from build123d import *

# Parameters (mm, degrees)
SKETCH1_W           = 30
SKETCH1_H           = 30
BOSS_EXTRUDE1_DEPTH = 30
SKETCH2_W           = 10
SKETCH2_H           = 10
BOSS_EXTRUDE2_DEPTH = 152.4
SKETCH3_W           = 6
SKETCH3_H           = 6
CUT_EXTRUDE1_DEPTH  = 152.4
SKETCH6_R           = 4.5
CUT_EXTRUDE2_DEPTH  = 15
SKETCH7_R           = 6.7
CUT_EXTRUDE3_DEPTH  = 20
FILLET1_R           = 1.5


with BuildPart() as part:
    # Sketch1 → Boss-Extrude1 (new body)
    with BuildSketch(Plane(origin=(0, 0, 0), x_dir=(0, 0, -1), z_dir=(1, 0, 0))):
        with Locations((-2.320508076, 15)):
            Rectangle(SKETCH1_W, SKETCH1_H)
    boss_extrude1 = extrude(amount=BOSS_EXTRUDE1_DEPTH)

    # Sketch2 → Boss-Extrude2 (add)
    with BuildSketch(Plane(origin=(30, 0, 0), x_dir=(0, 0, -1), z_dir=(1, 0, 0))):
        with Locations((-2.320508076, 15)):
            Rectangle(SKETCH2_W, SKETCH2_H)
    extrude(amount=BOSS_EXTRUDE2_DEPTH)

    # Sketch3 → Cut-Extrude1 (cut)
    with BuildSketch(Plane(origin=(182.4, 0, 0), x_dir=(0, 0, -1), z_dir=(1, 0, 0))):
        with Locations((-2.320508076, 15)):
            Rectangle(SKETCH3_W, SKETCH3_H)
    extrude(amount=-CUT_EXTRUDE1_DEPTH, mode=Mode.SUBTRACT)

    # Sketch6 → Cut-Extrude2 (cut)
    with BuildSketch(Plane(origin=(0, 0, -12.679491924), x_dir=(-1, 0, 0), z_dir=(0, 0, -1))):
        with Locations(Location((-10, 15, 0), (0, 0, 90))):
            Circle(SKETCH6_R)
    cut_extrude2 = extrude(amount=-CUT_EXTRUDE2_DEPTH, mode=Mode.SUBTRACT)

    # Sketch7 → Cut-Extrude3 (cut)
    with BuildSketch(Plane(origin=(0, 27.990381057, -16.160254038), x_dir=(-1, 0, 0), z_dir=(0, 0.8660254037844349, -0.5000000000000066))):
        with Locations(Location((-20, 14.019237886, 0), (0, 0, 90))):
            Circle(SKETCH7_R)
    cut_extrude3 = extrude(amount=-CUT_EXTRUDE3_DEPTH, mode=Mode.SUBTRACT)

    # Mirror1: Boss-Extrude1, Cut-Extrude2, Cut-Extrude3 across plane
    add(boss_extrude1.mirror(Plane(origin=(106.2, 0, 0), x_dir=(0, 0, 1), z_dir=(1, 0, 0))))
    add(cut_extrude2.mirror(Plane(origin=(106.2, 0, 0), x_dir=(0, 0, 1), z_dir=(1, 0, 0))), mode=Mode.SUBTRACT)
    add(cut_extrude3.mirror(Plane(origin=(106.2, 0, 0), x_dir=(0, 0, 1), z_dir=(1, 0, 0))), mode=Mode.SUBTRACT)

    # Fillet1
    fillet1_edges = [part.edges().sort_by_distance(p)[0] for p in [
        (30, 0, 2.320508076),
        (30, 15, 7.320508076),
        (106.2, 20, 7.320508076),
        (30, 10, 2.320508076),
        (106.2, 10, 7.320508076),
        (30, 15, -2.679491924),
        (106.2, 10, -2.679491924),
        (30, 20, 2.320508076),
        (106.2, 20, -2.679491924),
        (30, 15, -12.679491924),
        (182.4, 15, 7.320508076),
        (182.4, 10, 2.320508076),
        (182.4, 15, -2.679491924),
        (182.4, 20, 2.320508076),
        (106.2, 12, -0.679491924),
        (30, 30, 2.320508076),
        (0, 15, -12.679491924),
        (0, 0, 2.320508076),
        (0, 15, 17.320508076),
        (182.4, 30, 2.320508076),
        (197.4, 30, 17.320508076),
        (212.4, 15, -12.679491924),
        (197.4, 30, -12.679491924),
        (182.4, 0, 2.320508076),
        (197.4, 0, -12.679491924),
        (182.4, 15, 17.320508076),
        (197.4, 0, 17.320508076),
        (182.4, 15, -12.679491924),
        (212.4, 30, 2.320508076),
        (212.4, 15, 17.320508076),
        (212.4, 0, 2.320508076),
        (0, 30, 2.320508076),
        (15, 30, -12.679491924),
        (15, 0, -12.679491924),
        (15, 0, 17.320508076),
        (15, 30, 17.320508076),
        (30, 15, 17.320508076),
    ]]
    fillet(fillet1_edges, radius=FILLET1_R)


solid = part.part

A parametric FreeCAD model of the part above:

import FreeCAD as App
import Part
import Sketcher
Q = App.Units.Quantity


def edges_at(feature, points):
    """Names of the edges that pass closest to the given points."""
    edges = feature.Shape.Edges
    near = lambda p: min(range(len(edges)), key=lambda i: edges[i].distToShape(Part.Vertex(*p))[0])
    return sorted({f"Edge{near(p) + 1}" for p in points})


def add_polygon(sketch, points):
    """Adds a closed chain of lines whose ends are joined by coincident constraints."""
    first, n = sketch.GeometryCount, len(points)
    for a, b in zip(points, points[1:] + points[:1]):
        sketch.addGeometry(Part.LineSegment(App.Vector(*a, 0), App.Vector(*b, 0)), False)
    for i in range(n):
        sketch.addConstraint(Sketcher.Constraint("Coincident", first + i, 2, first + (i + 1) % n, 1))

doc = App.newDocument("Part")
params = doc.addObject("Spreadsheet::Sheet", "Params")
for row, (alias, value) in enumerate([
    ("sketch1_width", "30 mm"),
    ("pad1_length", "30 mm"),
    ("sketch2_width", "10 mm"),
    ("pad2_length", "152.4 mm"),
    ("sketch3_width", "6 mm"),
    ("pocket1_length", "152.4 mm"),
    ("sketch4_diameter", "9 mm"),
    ("pocket2_length", "15 mm"),
    ("sketch5_diameter", "13.4 mm"),
    ("pocket3_length", "20 mm"),
    ("fillet_radius", "1.5 mm"),
], start=1):
    params.set(f"A{row}", alias)
    params.set(f"B{row}", "=" + value)
    params.setAlias(f"B{row}", alias)

body = doc.addObject("PartDesign::Body", "Body")

# Sketch on YZ plane
sketch1 = body.newObject("Sketcher::SketchObject", "Sketch")
sketch1.AttachmentSupport = (doc.getObject("YZ_Plane"), [""])
sketch1.MapMode = "FlatFace"
add_polygon(sketch1, [(30, 17.320508), (0, 17.320508), (0, -12.679492), (30, -12.679492)])  # lines 0-3
sketch1.addConstraint(Sketcher.Constraint("Horizontal", 0))
sketch1.addConstraint(Sketcher.Constraint("Vertical", 1))
sketch1.addConstraint(Sketcher.Constraint("Horizontal", 2))
sketch1.addConstraint(Sketcher.Constraint("Vertical", 3))
sketch1.addConstraint(Sketcher.Constraint("PointOnObject", 0, 2, -2))
sketch1.addConstraint(Sketcher.Constraint("Equal", 2, 1))
sketch1.addConstraint(Sketcher.Constraint("DistanceX", 0, 2, 0, 1, Q("30 mm")))
sketch1.addConstraint(Sketcher.Constraint("DistanceY", -1, 1, 0, 2, Q("17.320508 mm")))
sketch1.setExpression("Constraints[10]", "Params.sketch1_width")
pad1 = body.newObject("PartDesign::Pad", "Pad")
pad1.Profile = sketch1
pad1.setExpression("Length", "Params.pad1_length")

# Sketch on YZ plane
sketch2 = body.newObject("Sketcher::SketchObject", "Sketch001")
sketch2.AttachmentSupport = (doc.getObject("YZ_Plane"), [""])
sketch2.MapMode = "FlatFace"
sketch2.AttachmentOffset = App.Placement(App.Vector(0, 0, 30), App.Rotation())
add_polygon(sketch2, [(20, 7.320508), (10, 7.320508), (10, -2.679492), (20, -2.679492)])  # lines 0-3
sketch2.addConstraint(Sketcher.Constraint("Horizontal", 0))
sketch2.addConstraint(Sketcher.Constraint("Vertical", 1))
sketch2.addConstraint(Sketcher.Constraint("Horizontal", 2))
sketch2.addConstraint(Sketcher.Constraint("Vertical", 3))
sketch2.addConstraint(Sketcher.Constraint("Equal", 2, 1))
sketch2.addConstraint(Sketcher.Constraint("DistanceX", 0, 2, 0, 1, Q("10 mm")))
sketch2.addConstraint(Sketcher.Constraint("DistanceX", -1, 1, 0, 2, Q("10 mm")))
sketch2.addConstraint(Sketcher.Constraint("DistanceY", -1, 1, 0, 2, Q("7.320508 mm")))
sketch2.setExpression("Constraints[9]", "Params.sketch2_width")
pad2 = body.newObject("PartDesign::Pad", "Pad001")
pad2.Profile = sketch2
pad2.setExpression("Length", "Params.pad2_length")

# Sketch on YZ plane
sketch3 = body.newObject("Sketcher::SketchObject", "Sketch002")
sketch3.AttachmentSupport = (doc.getObject("YZ_Plane"), [""])
sketch3.MapMode = "FlatFace"
sketch3.AttachmentOffset = App.Placement(App.Vector(0, 0, 182.4), App.Rotation())
add_polygon(sketch3, [(18, 5.320508), (12, 5.320508), (12, -0.679492), (18, -0.679492)])  # lines 0-3
sketch3.addConstraint(Sketcher.Constraint("Horizontal", 0))
sketch3.addConstraint(Sketcher.Constraint("Vertical", 1))
sketch3.addConstraint(Sketcher.Constraint("Horizontal", 2))
sketch3.addConstraint(Sketcher.Constraint("Vertical", 3))
sketch3.addConstraint(Sketcher.Constraint("Equal", 2, 1))
sketch3.addConstraint(Sketcher.Constraint("DistanceX", 0, 2, 0, 1, Q("6 mm")))
sketch3.addConstraint(Sketcher.Constraint("DistanceX", -1, 1, 0, 2, Q("12 mm")))
sketch3.addConstraint(Sketcher.Constraint("DistanceY", -1, 1, 0, 2, Q("5.320508 mm")))
sketch3.setExpression("Constraints[9]", "Params.sketch3_width")
pocket1 = body.newObject("PartDesign::Pocket", "Pocket")
pocket1.Profile = sketch3
pocket1.setExpression("Length", "Params.pocket1_length")

# Sketch on XY plane
sketch4 = body.newObject("Sketcher::SketchObject", "Sketch003")
sketch4.AttachmentSupport = (doc.getObject("XY_Plane"), [""])
sketch4.MapMode = "FlatFace"
sketch4.AttachmentOffset = App.Placement(App.Vector(0, 0, -12.679492), App.Rotation())
sketch4.addGeometry(Part.Circle(App.Vector(10, 15, 0), App.Vector(0, 0, 1), 4.5), False)
sketch4.addConstraint(Sketcher.Constraint("Diameter", 0, Q("9 mm")))
sketch4.addConstraint(Sketcher.Constraint("DistanceX", -1, 1, 0, 3, Q("10 mm")))
sketch4.addConstraint(Sketcher.Constraint("DistanceY", -1, 1, 0, 3, Q("15 mm")))
sketch4.setExpression("Constraints[0]", "Params.sketch4_diameter")
pocket2 = body.newObject("PartDesign::Pocket", "Pocket001")
pocket2.Profile = sketch4
pocket2.setExpression("Length", "Params.pocket2_length")
pocket2.Reversed = True

# Sketch on an angled plane
sketch5 = body.newObject("Sketcher::SketchObject", "Sketch004")
sketch5.Placement = App.Placement(App.Vector(0, 27.990381, -16.160254), App.Rotation(App.Vector(-1, 0, 0), App.Vector(0, 0.5, 0.866025404), App.Vector(0, 0.866025404, -0.5), "ZXY"))
sketch5.addGeometry(Part.Circle(App.Vector(-20, 14.019238, 0), App.Vector(0, 0, 1), 6.7), False)
sketch5.addConstraint(Sketcher.Constraint("Diameter", 0, Q("13.4 mm")))
sketch5.addConstraint(Sketcher.Constraint("DistanceX", 0, 3, -1, 1, Q("20 mm")))
sketch5.addConstraint(Sketcher.Constraint("DistanceY", -1, 1, 0, 3, Q("14.019238 mm")))
sketch5.setExpression("Constraints[0]", "Params.sketch5_diameter")
pocket3 = body.newObject("PartDesign::Pocket", "Pocket002")
pocket3.Profile = sketch5
pocket3.setExpression("Length", "Params.pocket3_length")
doc.recompute()

datumplane = body.newObject("PartDesign::Plane", "DatumPlane")
datumplane.AttachmentSupport = (doc.getObject("YZ_Plane"), [""])
datumplane.MapMode = "FlatFace"
datumplane.AttachmentOffset = App.Placement(App.Vector(0, 0, 106.2), App.Rotation())
mirrored = body.newObject("PartDesign::Mirrored", "Mirrored")
mirrored.Originals = [pad1, pocket2, pocket3]
mirrored.MirrorPlane = (datumplane, [""])
body.Tip = mirrored
doc.recompute()

fillet = body.newObject("PartDesign::Fillet", "Fillet")
fillet.Base = (mirrored, edges_at(mirrored, [
    (30, 0, 2.321),
    (30, 15, 7.321),
    (106.2, 20, 7.321),
    (30, 10, 2.321),
    (106.2, 10, 7.321),
    (30, 15, -2.679),
    (106.2, 10, -2.679),
    (30, 20, 2.321),
    (106.2, 20, -2.679),
    (30, 15, -12.679),
    (182.4, 15, 7.321),
    (182.4, 10, 2.321),
    (182.4, 15, -2.679),
    (182.4, 20, 2.321),
    (106.2, 12, -0.679),
    (30, 30, 2.321),
    (0, 15, -12.679),
    (0, 0, 2.321),
    (0, 15, 17.321),
    (182.4, 30, 2.321),
    (197.4, 30, 17.321),
    (212.4, 15, -12.679),
    (197.4, 30, -12.679),
    (182.4, 0, 2.321),
    (197.4, 0, -12.679),
    (182.4, 15, 17.321),
    (197.4, 0, 17.321),
    (182.4, 15, -12.679),
    (212.4, 30, 2.321),
    (212.4, 15, 17.321),
    (212.4, 0, 2.321),
    (0, 30, 2.321),
    (15, 30, -12.679),
    (15, 0, -12.679),
    (15, 0, 17.321),
    (15, 30, 17.321),
    (30, 15, 17.321),
]))
fillet.setExpression("Radius", "Params.fillet_radius")

doc.recompute()
